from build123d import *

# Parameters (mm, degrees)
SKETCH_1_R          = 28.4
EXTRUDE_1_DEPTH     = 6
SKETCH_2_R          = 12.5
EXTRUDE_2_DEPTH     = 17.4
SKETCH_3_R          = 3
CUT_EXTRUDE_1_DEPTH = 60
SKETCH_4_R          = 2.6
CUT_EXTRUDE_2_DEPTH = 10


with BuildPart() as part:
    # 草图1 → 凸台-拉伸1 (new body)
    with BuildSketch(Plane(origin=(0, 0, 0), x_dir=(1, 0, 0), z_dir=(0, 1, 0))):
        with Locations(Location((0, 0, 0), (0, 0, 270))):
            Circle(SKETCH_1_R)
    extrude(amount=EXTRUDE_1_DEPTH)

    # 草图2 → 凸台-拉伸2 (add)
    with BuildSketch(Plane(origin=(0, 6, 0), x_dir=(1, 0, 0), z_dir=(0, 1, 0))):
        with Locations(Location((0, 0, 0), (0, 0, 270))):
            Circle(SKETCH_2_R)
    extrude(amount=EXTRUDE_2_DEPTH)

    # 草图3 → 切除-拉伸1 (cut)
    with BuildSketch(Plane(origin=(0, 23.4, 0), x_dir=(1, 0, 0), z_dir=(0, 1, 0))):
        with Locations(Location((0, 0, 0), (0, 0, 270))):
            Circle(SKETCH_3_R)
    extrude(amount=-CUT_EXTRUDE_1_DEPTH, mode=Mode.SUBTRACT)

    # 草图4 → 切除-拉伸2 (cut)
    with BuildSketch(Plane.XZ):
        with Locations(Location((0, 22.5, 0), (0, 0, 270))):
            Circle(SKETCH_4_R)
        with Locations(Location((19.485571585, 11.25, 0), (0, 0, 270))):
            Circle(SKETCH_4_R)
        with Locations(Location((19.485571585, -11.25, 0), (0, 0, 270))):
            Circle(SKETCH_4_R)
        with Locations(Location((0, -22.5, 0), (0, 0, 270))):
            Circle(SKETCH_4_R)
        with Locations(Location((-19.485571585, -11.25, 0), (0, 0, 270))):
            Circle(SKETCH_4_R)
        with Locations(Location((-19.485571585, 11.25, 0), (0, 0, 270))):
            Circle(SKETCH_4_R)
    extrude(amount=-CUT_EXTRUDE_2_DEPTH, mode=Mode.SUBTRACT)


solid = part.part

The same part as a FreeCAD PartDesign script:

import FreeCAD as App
import Part
import Sketcher

V = App.Vector

doc = App.newDocument("Part")
body = doc.addObject("PartDesign::Body", "Body")

# Sketch on XZ plane
sketch1 = doc.addObject("Sketcher::SketchObject", "Sketch")
body.addObject(sketch1)
sketch1.AttachmentSupport = (doc.XZ_Plane, [""])
sketch1.MapMode = "FlatFace"
sketch1.addGeometry(Part.Circle(V(0, 0, 0), V(0, 0, 1), 28), False)
sketch1.addConstraint(Sketcher.Constraint("Coincident", 0, 3, -1, 1))
sketch1.addConstraint(Sketcher.Constraint("Diameter", 0, 56.8))
pad1 = doc.addObject("PartDesign::Pad", "Pad")
body.addObject(pad1)
pad1.Profile = sketch1
pad1.Length = 6
pad1.Reversed = True

# Sketch on XZ plane
sketch2 = doc.addObject("Sketcher::SketchObject", "Sketch001")
body.addObject(sketch2)
sketch2.AttachmentSupport = (doc.XZ_Plane, [""])
sketch2.MapMode = "FlatFace"
sketch2.AttachmentOffset = App.Placement(V(0, 0, -6), App.Rotation())
sketch2.addGeometry(Part.Circle(V(0, 0, 0), V(0, 0, 1), 12), False)
sketch2.addConstraint(Sketcher.Constraint("Coincident", 0, 3, -1, 1))
sketch2.addConstraint(Sketcher.Constraint("Diameter", 0, 25.0))
pad2 = doc.addObject("PartDesign::Pad", "Pad001")
body.addObject(pad2)
pad2.Profile = sketch2
pad2.Length = 17.4
pad2.Reversed = True

# Sketch on XZ plane
sketch3 = doc.addObject("Sketcher::SketchObject", "Sketch002")
body.addObject(sketch3)
sketch3.AttachmentSupport = (doc.XZ_Plane, [""])
sketch3.MapMode = "FlatFace"
sketch3.AttachmentOffset = App.Placement(V(0, 0, -23.4), App.Rotation())
sketch3.addGeometry(Part.Circle(V(0, 0, 0), V(0, 0, 1), 3), False)
sketch3.addConstraint(Sketcher.Constraint("Coincident", 0, 3, -1, 1))
sketch3.addConstraint(Sketcher.Constraint("Diameter", 0, 6.0))
pocket1 = doc.addObject("PartDesign::Pocket", "Pocket")
body.addObject(pocket1)
pocket1.Profile = sketch3
pocket1.Length = 60
pocket1.Reversed = True

# Sketch on XZ plane
sketch4 = doc.addObject("Sketcher::SketchObject", "Sketch003")
body.addObject(sketch4)
sketch4.AttachmentSupport = (doc.XZ_Plane, [""])
sketch4.MapMode = "FlatFace"
sketch4.addGeometry(Part.Circle(V(0, 22.5, 0), V(0, 0, 1), 2.6), False)
sketch4.addGeometry(Part.Circle(V(19.5, 11.2, 0), V(0, 0, 1), 2.6), False)
sketch4.addGeometry(Part.Circle(V(19.5, -11.2, 0), V(0, 0, 1), 2.6), False)
sketch4.addGeometry(Part.Circle(V(0, -22.5, 0), V(0, 0, 1), 2.6), False)
sketch4.addGeometry(Part.Circle(V(-19.5, -11.2, 0), V(0, 0, 1), 2.6), False)
sketch4.addGeometry(Part.Circle(V(-19.5, 11.2, 0), V(0, 0, 1), 2.6), False)
sketch4.addConstraint(Sketcher.Constraint("Equal", 0, 1))
sketch4.addConstraint(Sketcher.Constraint("Equal", 1, 2))
sketch4.addConstraint(Sketcher.Constraint("Equal", 2, 3))
sketch4.addConstraint(Sketcher.Constraint("Equal", 3, 4))
sketch4.addConstraint(Sketcher.Constraint("Equal", 4, 5))
sketch4.addConstraint(Sketcher.Constraint("Symmetric", 0, 3, 3, 3, -1, 1))
sketch4.addConstraint(Sketcher.Constraint("Symmetric", 1, 3, 4, 3, -1, 1))
sketch4.addConstraint(Sketcher.Constraint("Symmetric", 2, 3, 5, 3, -1, 1))
sketch4.addConstraint(Sketcher.Constraint("Symmetric", 2, 3, 4, 3, -2))
sketch4.addConstraint(Sketcher.Constraint("PointOnObject", 0, 3, -2))
sketch4.addConstraint(Sketcher.Constraint("Diameter", 0, 5.2))
sketch4.addConstraint(Sketcher.Constraint("DistanceY", 3, 3, 0, 3, 45.0))
sketch4.addConstraint(Sketcher.Constraint("DistanceY", 2, 3, 1, 3, 22.5))
sketch4.addConstraint(Sketcher.Constraint("DistanceX", -1, 1, 1, 3, 19.485572))
pocket2 = doc.addObject("PartDesign::Pocket", "Pocket001")
body.addObject(pocket2)
pocket2.Profile = sketch4
pocket2.Length = 10

doc.recompute()
